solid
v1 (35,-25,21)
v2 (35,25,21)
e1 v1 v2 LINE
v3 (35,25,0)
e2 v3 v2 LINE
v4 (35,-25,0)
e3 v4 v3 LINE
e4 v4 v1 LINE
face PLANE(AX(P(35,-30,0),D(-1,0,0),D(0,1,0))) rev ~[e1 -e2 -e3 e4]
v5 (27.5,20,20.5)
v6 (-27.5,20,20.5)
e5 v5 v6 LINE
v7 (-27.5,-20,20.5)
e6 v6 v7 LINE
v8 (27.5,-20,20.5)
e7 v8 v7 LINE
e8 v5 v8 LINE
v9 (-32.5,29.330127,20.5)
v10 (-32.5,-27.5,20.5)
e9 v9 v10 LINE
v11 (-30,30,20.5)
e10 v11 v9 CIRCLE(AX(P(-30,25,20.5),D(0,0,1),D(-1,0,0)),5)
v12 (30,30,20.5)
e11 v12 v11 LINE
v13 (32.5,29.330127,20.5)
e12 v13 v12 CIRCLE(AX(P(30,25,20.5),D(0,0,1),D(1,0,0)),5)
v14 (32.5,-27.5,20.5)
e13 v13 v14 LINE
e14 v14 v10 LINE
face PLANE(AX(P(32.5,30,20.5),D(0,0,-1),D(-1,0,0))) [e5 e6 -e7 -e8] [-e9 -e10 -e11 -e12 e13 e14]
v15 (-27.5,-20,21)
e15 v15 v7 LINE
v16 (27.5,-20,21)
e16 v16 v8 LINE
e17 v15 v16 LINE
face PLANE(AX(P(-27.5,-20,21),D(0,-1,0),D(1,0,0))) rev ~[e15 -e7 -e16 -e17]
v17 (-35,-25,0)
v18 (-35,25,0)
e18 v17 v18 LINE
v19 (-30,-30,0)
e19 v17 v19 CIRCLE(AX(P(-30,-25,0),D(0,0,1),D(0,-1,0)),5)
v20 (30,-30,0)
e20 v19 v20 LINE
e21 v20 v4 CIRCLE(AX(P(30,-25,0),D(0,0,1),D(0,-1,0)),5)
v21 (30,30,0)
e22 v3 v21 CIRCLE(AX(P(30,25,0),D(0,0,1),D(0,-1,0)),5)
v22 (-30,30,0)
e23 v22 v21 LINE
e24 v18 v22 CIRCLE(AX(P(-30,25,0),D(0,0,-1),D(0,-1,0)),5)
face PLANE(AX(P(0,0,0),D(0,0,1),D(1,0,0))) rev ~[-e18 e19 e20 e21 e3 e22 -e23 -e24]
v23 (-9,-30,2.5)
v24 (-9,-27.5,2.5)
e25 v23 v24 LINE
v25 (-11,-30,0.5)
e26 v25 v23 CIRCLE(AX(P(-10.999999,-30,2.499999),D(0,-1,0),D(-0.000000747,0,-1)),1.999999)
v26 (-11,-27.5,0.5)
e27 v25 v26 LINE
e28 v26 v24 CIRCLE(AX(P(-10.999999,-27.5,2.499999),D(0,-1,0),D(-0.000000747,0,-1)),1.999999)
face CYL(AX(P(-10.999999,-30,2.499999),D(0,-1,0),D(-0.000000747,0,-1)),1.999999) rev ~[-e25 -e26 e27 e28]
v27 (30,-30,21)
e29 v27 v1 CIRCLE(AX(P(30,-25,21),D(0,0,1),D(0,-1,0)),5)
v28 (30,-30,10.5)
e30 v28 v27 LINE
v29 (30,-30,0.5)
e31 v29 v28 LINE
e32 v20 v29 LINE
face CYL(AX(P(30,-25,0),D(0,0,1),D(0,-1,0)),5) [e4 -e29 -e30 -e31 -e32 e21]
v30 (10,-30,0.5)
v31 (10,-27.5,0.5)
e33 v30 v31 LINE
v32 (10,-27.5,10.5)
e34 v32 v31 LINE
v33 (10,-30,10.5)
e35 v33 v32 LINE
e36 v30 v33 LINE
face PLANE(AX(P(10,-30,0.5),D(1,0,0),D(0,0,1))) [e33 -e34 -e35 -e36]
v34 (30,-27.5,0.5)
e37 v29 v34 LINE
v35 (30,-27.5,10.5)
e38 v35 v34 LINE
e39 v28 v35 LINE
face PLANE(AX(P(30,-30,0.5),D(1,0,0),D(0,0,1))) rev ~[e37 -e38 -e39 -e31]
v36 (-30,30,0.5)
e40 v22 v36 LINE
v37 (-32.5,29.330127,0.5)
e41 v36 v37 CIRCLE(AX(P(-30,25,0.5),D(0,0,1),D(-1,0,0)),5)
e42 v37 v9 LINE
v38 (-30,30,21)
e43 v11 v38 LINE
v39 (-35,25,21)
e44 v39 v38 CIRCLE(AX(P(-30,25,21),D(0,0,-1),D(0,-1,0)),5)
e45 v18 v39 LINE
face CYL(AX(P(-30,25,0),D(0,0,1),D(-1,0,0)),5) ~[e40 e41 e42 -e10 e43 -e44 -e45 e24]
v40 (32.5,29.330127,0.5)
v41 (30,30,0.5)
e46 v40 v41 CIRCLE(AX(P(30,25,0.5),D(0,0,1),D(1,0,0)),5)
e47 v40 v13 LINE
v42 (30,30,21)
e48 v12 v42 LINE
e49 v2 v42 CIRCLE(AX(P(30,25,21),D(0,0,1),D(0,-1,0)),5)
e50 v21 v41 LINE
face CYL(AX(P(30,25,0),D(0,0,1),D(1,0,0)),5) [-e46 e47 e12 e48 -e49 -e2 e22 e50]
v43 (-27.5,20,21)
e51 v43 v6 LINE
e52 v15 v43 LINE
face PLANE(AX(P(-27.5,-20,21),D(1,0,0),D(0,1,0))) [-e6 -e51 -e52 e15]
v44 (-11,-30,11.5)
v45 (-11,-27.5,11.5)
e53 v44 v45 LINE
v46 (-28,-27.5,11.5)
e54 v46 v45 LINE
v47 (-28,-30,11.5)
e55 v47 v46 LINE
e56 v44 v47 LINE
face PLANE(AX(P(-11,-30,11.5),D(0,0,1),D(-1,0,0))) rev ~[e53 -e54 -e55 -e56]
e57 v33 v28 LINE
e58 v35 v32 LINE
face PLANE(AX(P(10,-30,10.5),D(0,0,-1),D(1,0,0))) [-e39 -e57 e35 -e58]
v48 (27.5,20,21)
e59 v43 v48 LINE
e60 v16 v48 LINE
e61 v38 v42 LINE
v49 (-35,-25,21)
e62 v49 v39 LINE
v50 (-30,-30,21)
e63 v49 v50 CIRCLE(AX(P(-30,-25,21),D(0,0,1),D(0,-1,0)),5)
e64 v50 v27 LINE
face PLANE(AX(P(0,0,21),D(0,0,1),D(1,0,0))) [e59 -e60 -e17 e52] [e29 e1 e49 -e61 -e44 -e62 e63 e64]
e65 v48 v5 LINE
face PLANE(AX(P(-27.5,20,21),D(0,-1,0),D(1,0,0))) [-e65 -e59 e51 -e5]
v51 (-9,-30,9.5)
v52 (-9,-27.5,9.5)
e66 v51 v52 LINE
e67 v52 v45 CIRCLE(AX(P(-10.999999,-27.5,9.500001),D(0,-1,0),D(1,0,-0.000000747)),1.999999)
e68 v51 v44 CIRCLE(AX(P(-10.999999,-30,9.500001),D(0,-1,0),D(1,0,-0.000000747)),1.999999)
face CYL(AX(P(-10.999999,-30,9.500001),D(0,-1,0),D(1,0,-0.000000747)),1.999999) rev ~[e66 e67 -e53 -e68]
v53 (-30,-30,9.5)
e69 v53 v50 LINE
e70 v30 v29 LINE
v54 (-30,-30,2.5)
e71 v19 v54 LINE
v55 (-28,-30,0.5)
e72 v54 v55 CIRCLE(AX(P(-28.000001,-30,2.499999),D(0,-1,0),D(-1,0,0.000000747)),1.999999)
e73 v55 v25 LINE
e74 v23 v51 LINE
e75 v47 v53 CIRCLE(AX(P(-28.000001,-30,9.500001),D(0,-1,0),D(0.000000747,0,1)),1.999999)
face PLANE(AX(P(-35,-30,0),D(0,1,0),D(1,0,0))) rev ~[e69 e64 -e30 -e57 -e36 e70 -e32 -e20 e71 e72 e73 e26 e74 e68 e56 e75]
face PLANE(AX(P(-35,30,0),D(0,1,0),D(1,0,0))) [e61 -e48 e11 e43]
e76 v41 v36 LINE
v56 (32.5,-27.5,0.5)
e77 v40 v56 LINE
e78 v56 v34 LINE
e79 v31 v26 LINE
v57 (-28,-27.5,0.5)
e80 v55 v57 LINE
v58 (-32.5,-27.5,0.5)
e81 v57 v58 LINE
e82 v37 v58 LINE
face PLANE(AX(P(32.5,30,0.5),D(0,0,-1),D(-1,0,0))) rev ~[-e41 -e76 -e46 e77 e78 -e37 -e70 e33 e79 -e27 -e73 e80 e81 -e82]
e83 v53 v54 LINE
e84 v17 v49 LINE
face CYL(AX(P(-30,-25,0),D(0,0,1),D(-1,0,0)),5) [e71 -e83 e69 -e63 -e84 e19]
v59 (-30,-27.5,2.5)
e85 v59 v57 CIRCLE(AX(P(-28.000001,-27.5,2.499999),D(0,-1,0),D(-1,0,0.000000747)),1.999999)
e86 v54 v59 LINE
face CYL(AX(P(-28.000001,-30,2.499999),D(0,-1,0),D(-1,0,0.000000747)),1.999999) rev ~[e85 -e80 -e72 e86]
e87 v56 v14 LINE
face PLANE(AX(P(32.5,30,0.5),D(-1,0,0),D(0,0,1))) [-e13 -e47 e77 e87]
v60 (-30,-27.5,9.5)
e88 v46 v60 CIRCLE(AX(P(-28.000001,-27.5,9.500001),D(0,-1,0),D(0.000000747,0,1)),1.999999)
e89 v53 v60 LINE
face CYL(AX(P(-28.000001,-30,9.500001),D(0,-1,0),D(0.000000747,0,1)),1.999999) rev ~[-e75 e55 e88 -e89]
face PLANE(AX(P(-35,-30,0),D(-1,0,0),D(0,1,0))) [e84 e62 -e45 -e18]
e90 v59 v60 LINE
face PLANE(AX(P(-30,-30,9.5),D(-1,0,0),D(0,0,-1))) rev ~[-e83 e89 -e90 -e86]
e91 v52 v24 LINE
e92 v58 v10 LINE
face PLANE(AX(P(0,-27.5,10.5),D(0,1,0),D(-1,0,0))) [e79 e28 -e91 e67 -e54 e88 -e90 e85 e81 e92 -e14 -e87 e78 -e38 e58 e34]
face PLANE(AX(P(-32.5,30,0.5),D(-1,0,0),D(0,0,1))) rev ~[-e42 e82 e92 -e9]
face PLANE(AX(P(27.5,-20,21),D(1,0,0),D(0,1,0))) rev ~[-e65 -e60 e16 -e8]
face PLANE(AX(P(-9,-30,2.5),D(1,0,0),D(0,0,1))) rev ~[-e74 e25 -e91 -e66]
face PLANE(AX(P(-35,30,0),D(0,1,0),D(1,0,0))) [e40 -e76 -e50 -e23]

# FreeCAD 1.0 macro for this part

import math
import FreeCAD as App
import Part
import Sketcher
Q = App.Units.Quantity


def edges_at(feature, points):
    """Names of the edges that pass closest to the given points."""
    edges = feature.Shape.Edges
    near = lambda p: min(range(len(edges)), key=lambda i: edges[i].distToShape(Part.Vertex(*p))[0])
    return sorted({f"Edge{near(p) + 1}" for p in points})

doc = App.newDocument("Part")
body = doc.addObject("PartDesign::Body", "Body")

# Sketch on XY plane
sketch1 = doc.addObject("Sketcher::SketchObject", "Sketch")
body.addObject(sketch1)
sketch1.AttachmentSupport = (doc.XY_Plane, [""])
sketch1.MapMode = "FlatFace"
sketch1.addGeometry([
    Part.LineSegment(App.Vector(-35, 30, 0), App.Vector(-35, -30, 0)),
    Part.LineSegment(App.Vector(-35, -30, 0), App.Vector(35, -30, 0)),
    Part.LineSegment(App.Vector(35, -30, 0), App.Vector(35, 30, 0)),
    Part.LineSegment(App.Vector(35, 30, 0), App.Vector(-35, 30, 0)),
], False)
sketch1.addConstraint([
    Sketcher.Constraint("Coincident", 0, 2, 1, 1),
    Sketcher.Constraint("Coincident", 1, 2, 2, 1),
    Sketcher.Constraint("Coincident", 2, 2, 3, 1),
    Sketcher.Constraint("Coincident", 3, 2, 0, 1),
    Sketcher.Constraint("Vertical", 0),
    Sketcher.Constraint("Horizontal", 1),
    Sketcher.Constraint("Vertical", 2),
    Sketcher.Constraint("Horizontal", 3),
    Sketcher.Constraint("Symmetric", 0, 2, 2, 2, -1, 1),
    Sketcher.Constraint("DistanceX", 1, 1, 1, 2, Q("70 mm")),
    Sketcher.Constraint("DistanceY", 0, 2, 0, 1, Q("60 mm")),
])
pad1 = doc.addObject("PartDesign::Pad", "Pad")
body.addObject(pad1)
pad1.Profile = sketch1
pad1.Length = 21
doc.recompute()

fillet = doc.addObject("PartDesign::Fillet", "Fillet")
body.addObject(fillet)
fillet.Base = (pad1, edges_at(pad1, [
    (-35, -30, 10.5),
    (-35, 30, 10.5),
    (35, 30, 10.5),
    (35, -30, 10.5),
]))
fillet.Radius = 5

# Sketch on XZ plane
sketch2 = doc.addObject("Sketcher::SketchObject", "Sketch001")
body.addObject(sketch2)
sketch2.AttachmentSupport = (doc.XZ_Plane, [""])
sketch2.MapMode = "FlatFace"
sketch2.AttachmentOffset = App.Placement(App.Vector(0, 0, -30), App.Rotation())
sketch2.addGeometry([
    Part.LineSegment(App.Vector(32, 20, 0), App.Vector(32, 0, 0)),
    Part.LineSegment(App.Vector(32, 0, 0), App.Vector(-32, 0, 0)),
    Part.LineSegment(App.Vector(-32, 0, 0), App.Vector(-32, 20, 0)),
    Part.LineSegment(App.Vector(-32, 20, 0), App.Vector(32, 20, 0)),
], False)
sketch2.addConstraint([
    Sketcher.Constraint("Coincident", 0, 2, 1, 1),
    Sketcher.Constraint("Coincident", 1, 2, 2, 1),
    Sketcher.Constraint("Coincident", 2, 2, 3, 1),
    Sketcher.Constraint("Coincident", 3, 2, 0, 1),
    Sketcher.Constraint("Vertical", 0),
    Sketcher.Constraint("Horizontal", 1),
    Sketcher.Constraint("Vertical", 2),
    Sketcher.Constraint("Horizontal", 3),
    Sketcher.Constraint("DistanceX", 1, 2, 1, 1, Q("65 mm")),
    Sketcher.Constraint("DistanceY", 0, 2, 0, 1, Q("20 mm")),
    Sketcher.Constraint("DistanceX", -1, 1, 0, 2, Q("32.5 mm")),
    Sketcher.Constraint("DistanceY", -1, 1, 0, 2, Q("0.5 mm")),
])
pocket1 = doc.addObject("PartDesign::Pocket", "Pocket")
body.addObject(pocket1)
pocket1.Profile = sketch2
pocket1.Length = 57.5
pocket1.Reversed = True

# Sketch on XY plane
sketch3 = doc.addObject("Sketcher::SketchObject", "Sketch002")
body.addObject(sketch3)
sketch3.AttachmentSupport = (doc.XY_Plane, [""])
sketch3.MapMode = "FlatFace"
sketch3.AttachmentOffset = App.Placement(App.Vector(0, 0, 21), App.Rotation())
sketch3.addGeometry([
    Part.LineSegment(App.Vector(-28, 20, 0), App.Vector(-28, -20, 0)),
    Part.LineSegment(App.Vector(-28, -20, 0), App.Vector(28, -20, 0)),
    Part.LineSegment(App.Vector(28, -20, 0), App.Vector(28, 20, 0)),
    Part.LineSegment(App.Vector(28, 20, 0), App.Vector(-28, 20, 0)),
], False)
sketch3.addConstraint([
    Sketcher.Constraint("Coincident", 0, 2, 1, 1),
    Sketcher.Constraint("Coincident", 1, 2, 2, 1),
    Sketcher.Constraint("Coincident", 2, 2, 3, 1),
    Sketcher.Constraint("Coincident", 3, 2, 0, 1),
    Sketcher.Constraint("Vertical", 0),
    Sketcher.Constraint("Horizontal", 1),
    Sketcher.Constraint("Vertical", 2),
    Sketcher.Constraint("Horizontal", 3),
    Sketcher.Constraint("Symmetric", 0, 2, 2, 2, -1, 1),
    Sketcher.Constraint("DistanceX", 1, 1, 1, 2, Q("55 mm")),
    Sketcher.Constraint("DistanceY", 0, 2, 0, 1, Q("40 mm")),
])
pocket2 = doc.addObject("PartDesign::Pocket", "Pocket001")
body.addObject(pocket2)
pocket2.Profile = sketch3
pocket2.Length = 1

# Sketch on XZ plane
sketch4 = doc.addObject("Sketcher::SketchObject", "Sketch003")
body.addObject(sketch4)
sketch4.AttachmentSupport = (doc.XZ_Plane, [""])
sketch4.MapMode = "FlatFace"
sketch4.AttachmentOffset = App.Placement(App.Vector(0, 0, 30), App.Rotation())
sketch4.addGeometry([
    Part.ArcOfCircle(Part.Circle(App.Vector(-11, 9.5, 0), App.Vector(0, 0, 1), 2), math.radians(0), math.radians(90)),  # 0
    Part.LineSegment(App.Vector(-11, 11.5, 0), App.Vector(-28, 11.5, 0)),  # 1
    Part.ArcOfCircle(Part.Circle(App.Vector(-28, 9.5, 0), App.Vector(0, 0, 1), 2), math.radians(90), math.radians(180)),  # 2
    Part.LineSegment(App.Vector(-30, 9.5, 0), App.Vector(-30, 2.5, 0)),  # 3
    Part.ArcOfCircle(Part.Circle(App.Vector(-28, 2.5, 0), App.Vector(0, 0, 1), 2), math.radians(180), math.radians(270)),  # 4
    Part.LineSegment(App.Vector(-28, 0.5, 0), App.Vector(-11, 0.5, 0)),  # 5
    Part.ArcOfCircle(Part.Circle(App.Vector(-11, 2.5, 0), App.Vector(0, 0, 1), 2), math.radians(-90), math.radians(0)),  # 6
    Part.LineSegment(App.Vector(-9, 2.5, 0), App.Vector(-9, 9.5, 0)),  # 7
], False)
sketch4.addConstraint([
    Sketcher.Constraint("Tangent", 0, 2, 1, 1),
    Sketcher.Constraint("Tangent", 1, 2, 2, 1),
    Sketcher.Constraint("Tangent", 2, 2, 3, 1),
    Sketcher.Constraint("Tangent", 3, 2, 4, 1),
    Sketcher.Constraint("Tangent", 4, 2, 5, 1),
    Sketcher.Constraint("Tangent", 5, 2, 6, 1),
    Sketcher.Constraint("Tangent", 6, 2, 7, 1),
    Sketcher.Constraint("Tangent", 7, 2, 0, 1),
    Sketcher.Constraint("Horizontal", 1),
    Sketcher.Constraint("Vertical", 3),
    Sketcher.Constraint("Horizontal", 5),
    Sketcher.Constraint("Vertical", 7),
    Sketcher.Constraint("Equal", 0, 2),
    Sketcher.Constraint("Equal", 2, 4),
    Sketcher.Constraint("Equal", 4, 6),
    Sketcher.Constraint("Radius", 0, Q("1.999999 mm")),
    Sketcher.Constraint("DistanceX", 1, 2, 1, 1, Q("17 mm")),
    Sketcher.Constraint("DistanceY", 3, 2, 3, 1, Q("7 mm")),
    Sketcher.Constraint("DistanceX", 0, 3, -1, 1, Q("10.999999 mm")),
    Sketcher.Constraint("DistanceY", -1, 1, 0, 3, Q("9.500001 mm")),
])
pocket3 = doc.addObject("PartDesign::Pocket", "Pocket002")
body.addObject(pocket3)
pocket3.Profile = sketch4
pocket3.Length = 5

# Sketch on XZ plane
sketch5 = doc.addObject("Sketcher::SketchObject", "Sketch004")
body.addObject(sketch5)
sketch5.AttachmentSupport = (doc.XZ_Plane, [""])
sketch5.MapMode = "FlatFace"
sketch5.AttachmentOffset = App.Placement(App.Vector(0, 0, 30), App.Rotation())
sketch5.addGeometry([
    Part.LineSegment(App.Vector(10, 10, 0), App.Vector(10, 0, 0)),
    Part.LineSegment(App.Vector(10, 0, 0), App.Vector(30, 0, 0)),
    Part.LineSegment(App.Vector(30, 0, 0), App.Vector(30, 10, 0)),
    Part.LineSegment(App.Vector(30, 10, 0), App.Vector(10, 10, 0)),
], False)
sketch5.addConstraint([
    Sketcher.Constraint("Coincident", 0, 2, 1, 1),
    Sketcher.Constraint("Coincident", 1, 2, 2, 1),
    Sketcher.Constraint("Coincident", 2, 2, 3, 1),
    Sketcher.Constraint("Coincident", 3, 2, 0, 1),
    Sketcher.Constraint("Vertical", 0),
    Sketcher.Constraint("Horizontal", 1),
    Sketcher.Constraint("Vertical", 2),
    Sketcher.Constraint("Horizontal", 3),
    Sketcher.Constraint("DistanceX", 1, 1, 1, 2, Q("20 mm")),
    Sketcher.Constraint("DistanceY", 0, 2, 0, 1, Q("10 mm")),
    Sketcher.Constraint("DistanceX", -1, 1, 0, 2, Q("10 mm")),
    Sketcher.Constraint("DistanceY", -1, 1, 0, 2, Q("0.5 mm")),
])
pocket4 = doc.addObject("PartDesign::Pocket", "Pocket003")
body.addObject(pocket4)
pocket4.Profile = sketch5
pocket4.Length = 4

doc.recompute()
